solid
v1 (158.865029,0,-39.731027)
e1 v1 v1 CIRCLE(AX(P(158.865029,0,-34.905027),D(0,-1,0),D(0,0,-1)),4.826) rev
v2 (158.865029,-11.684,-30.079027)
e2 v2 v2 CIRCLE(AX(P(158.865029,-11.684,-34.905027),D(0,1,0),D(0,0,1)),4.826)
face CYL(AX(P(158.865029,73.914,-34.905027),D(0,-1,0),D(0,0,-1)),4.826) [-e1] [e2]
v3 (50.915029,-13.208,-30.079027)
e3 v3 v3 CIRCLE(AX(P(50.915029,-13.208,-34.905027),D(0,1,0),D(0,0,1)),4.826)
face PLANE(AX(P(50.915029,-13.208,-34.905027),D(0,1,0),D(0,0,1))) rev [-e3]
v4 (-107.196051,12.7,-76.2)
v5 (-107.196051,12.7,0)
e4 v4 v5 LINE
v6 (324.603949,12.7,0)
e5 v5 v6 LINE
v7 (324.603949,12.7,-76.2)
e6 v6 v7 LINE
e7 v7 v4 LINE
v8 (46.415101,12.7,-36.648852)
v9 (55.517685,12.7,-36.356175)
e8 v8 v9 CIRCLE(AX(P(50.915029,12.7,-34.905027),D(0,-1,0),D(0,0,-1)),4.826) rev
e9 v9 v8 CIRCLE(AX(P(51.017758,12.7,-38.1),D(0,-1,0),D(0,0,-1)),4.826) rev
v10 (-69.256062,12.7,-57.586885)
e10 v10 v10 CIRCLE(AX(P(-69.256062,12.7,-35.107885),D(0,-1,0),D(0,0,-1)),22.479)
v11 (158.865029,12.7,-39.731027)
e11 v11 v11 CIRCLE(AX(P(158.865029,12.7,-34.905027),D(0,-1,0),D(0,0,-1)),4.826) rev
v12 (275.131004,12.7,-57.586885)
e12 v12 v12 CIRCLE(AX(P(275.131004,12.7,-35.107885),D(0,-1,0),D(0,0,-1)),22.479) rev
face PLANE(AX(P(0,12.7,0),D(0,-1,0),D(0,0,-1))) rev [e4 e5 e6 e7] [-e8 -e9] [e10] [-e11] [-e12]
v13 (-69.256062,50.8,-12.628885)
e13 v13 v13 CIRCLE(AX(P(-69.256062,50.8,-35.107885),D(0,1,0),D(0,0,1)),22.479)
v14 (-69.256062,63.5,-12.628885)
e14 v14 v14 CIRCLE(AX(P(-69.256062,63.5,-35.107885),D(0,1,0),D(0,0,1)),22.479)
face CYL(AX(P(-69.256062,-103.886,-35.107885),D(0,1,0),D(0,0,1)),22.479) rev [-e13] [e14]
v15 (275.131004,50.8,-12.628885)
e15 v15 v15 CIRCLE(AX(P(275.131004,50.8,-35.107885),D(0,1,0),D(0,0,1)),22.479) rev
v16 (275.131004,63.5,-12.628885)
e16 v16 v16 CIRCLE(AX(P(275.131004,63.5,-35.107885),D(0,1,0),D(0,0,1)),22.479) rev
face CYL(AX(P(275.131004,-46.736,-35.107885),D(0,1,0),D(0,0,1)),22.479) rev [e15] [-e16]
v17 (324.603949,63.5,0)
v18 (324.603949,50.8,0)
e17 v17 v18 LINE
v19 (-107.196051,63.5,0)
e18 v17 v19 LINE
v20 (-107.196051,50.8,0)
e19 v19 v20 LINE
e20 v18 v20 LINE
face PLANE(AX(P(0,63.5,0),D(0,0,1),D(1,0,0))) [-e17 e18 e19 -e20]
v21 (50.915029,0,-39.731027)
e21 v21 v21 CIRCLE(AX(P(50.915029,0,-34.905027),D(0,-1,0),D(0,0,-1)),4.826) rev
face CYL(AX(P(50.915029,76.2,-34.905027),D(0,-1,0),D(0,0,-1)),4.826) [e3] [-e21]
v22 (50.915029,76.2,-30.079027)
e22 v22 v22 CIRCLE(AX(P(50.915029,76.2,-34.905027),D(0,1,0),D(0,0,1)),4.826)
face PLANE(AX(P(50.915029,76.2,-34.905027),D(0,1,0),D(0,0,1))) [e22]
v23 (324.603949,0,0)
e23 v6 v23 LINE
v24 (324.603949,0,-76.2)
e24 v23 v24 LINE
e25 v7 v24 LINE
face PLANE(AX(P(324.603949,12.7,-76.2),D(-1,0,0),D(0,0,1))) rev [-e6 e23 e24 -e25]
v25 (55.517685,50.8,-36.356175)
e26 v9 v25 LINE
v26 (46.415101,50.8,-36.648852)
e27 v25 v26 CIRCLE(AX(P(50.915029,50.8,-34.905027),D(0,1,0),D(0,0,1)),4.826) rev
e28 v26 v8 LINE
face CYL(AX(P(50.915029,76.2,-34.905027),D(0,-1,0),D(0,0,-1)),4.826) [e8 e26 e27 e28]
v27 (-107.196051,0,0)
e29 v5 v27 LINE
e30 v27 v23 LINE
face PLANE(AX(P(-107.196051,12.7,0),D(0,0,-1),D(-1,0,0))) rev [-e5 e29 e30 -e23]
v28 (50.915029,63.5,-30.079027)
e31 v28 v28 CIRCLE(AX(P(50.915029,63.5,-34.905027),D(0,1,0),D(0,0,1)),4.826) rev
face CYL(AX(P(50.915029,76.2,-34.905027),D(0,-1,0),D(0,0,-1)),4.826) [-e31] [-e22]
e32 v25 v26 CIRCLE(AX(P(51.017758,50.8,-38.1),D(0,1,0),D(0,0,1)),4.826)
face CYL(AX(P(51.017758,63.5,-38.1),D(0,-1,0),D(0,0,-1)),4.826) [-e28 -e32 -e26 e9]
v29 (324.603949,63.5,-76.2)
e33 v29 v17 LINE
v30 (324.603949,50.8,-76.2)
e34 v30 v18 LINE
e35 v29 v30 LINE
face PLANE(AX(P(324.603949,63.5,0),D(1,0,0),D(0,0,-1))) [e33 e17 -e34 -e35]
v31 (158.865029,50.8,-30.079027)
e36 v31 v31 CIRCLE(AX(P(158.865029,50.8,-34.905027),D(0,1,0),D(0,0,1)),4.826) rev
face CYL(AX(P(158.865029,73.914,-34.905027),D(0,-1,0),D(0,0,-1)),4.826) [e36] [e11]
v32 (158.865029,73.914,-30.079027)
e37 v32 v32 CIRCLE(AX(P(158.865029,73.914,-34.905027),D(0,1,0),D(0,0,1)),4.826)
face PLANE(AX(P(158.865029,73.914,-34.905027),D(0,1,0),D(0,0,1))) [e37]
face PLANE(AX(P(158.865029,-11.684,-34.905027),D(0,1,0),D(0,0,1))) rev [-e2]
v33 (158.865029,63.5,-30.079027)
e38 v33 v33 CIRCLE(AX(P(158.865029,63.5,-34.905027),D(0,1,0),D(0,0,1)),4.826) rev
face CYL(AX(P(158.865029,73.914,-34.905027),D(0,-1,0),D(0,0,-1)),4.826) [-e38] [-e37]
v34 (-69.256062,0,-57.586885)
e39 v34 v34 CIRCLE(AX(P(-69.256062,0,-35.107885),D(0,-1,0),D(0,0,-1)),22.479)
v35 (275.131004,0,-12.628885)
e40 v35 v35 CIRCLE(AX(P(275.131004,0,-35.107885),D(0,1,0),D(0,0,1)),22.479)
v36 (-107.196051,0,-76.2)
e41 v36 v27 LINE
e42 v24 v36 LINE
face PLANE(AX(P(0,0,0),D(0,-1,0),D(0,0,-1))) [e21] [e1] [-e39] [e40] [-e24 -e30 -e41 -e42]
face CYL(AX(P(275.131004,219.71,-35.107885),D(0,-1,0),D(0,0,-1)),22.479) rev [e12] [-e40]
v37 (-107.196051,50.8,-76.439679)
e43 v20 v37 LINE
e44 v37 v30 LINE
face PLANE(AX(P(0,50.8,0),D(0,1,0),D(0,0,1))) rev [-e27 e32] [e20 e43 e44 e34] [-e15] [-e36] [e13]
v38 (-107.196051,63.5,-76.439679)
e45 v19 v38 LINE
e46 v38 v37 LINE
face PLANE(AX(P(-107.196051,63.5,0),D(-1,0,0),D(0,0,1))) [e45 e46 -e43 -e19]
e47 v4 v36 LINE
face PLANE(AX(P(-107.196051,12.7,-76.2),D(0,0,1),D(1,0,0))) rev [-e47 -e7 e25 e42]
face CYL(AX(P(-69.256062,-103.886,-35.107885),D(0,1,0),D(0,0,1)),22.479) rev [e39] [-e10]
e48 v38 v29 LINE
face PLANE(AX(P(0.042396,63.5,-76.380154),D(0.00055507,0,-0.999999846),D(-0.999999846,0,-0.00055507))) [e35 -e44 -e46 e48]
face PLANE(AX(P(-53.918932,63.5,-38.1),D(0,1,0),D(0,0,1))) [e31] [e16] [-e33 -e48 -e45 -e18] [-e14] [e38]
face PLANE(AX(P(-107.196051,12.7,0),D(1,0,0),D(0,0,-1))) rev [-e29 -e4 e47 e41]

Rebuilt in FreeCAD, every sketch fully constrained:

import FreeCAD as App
import Part
import Sketcher
Q = App.Units.Quantity


def add_polygon(sketch, points):
    """Adds a closed chain of lines whose ends are joined by coincident constraints."""
    first, n = sketch.GeometryCount, len(points)
    for a, b in zip(points, points[1:] + points[:1]):
        sketch.addGeometry(Part.LineSegment(App.Vector(*a, 0), App.Vector(*b, 0)), False)
    for i in range(n):
        sketch.addConstraint(Sketcher.Constraint("Coincident", first + i, 2, first + (i + 1) % n, 1))

doc = App.newDocument("Part")
body = doc.addObject("PartDesign::Body", "Body")

sketch1 = body.newObject("Sketcher::SketchObject", "Sketch")
sketch1.AttachmentSupport = (doc.getObject("XZ_Plane"), [""])
sketch1.MapMode = "FlatFace"
add_polygon(sketch1, [(-107, -76), (-107, 0), (325, 0), (325, -76)])
sketch1.addConstraint([
    Sketcher.Constraint("Vertical", 0),
    Sketcher.Constraint("Horizontal", 1),
    Sketcher.Constraint("Vertical", 2),
    Sketcher.Constraint("Horizontal", 3),
    Sketcher.Constraint("PointOnObject", 0, 2, -1),
    Sketcher.Constraint("DistanceX", 1, 1, 1, 2, Q("17 in")),
    Sketcher.Constraint("DistanceY", 0, 1, 0, 2, Q("3 in")),
    Sketcher.Constraint("DistanceX", 0, 2, -1, 1, Q("107.196051 mm")),
])
pad1 = body.newObject("PartDesign::Pad", "Pad")
pad1.Profile = sketch1
pad1.Length = Q("0.5 in")
pad1.Reversed = True

sketch2 = body.newObject("Sketcher::SketchObject", "Sketch001")
sketch2.AttachmentSupport = (doc.getObject("XZ_Plane"), [""])
sketch2.MapMode = "FlatFace"
sketch2.addGeometry([
    Part.Circle(App.Vector(-53.9, -38.1, 0), App.Vector(0, 0, 1), 4.8),
    Part.Circle(App.Vector(51, -38.1, 0), App.Vector(0, 0, 1), 4.8),
], False)
sketch2.addConstraint([
    Sketcher.Constraint("Equal", 0, 1),
    Sketcher.Constraint("Horizontal", 0, 3, 1, 3),
    Sketcher.Constraint("Diameter", 0, Q("0.38 in")),
    Sketcher.Constraint("DistanceY", 0, 3, -1, 1, Q("1.5 in")),
    Sketcher.Constraint("DistanceX", 0, 3, 1, 3, Q("104.93669 mm")),
    Sketcher.Constraint("DistanceX", 0, 3, -1, 1, Q("53.918932 mm")),
])
pad2 = body.newObject("PartDesign::Pad", "Pad001")
pad2.Profile = sketch2
pad2.Length = Q("2.5 in")
pad2.Reversed = True

sketch3 = body.newObject("Sketcher::SketchObject", "Sketch002")
sketch3.AttachmentSupport = (doc.getObject("XZ_Plane"), [""])
sketch3.MapMode = "FlatFace"
sketch3.addGeometry(Part.Circle(App.Vector(275, -35, 0), App.Vector(0, 0, 1), 22), False)
sketch3.addConstraint([
    Sketcher.Constraint("Diameter", 0, Q("1.77 in")),
    Sketcher.Constraint("DistanceY", 0, 3, -1, 1, Q("1.3822002 in")),
    Sketcher.Constraint("DistanceX", -1, 1, 0, 3, Q("275.131004 mm")),
])
pocket1 = body.newObject("PartDesign::Pocket", "Pocket")
pocket1.Profile = sketch3
pocket1.Length = Q("8.65 in")

sketch4 = body.newObject("Sketcher::SketchObject", "Sketch003")
sketch4.AttachmentSupport = (doc.getObject("XZ_Plane"), [""])
sketch4.MapMode = "FlatFace"
sketch4.addGeometry(Part.Circle(App.Vector(275, -35, 0), App.Vector(0, 0, 1), 22), False)
sketch4.addConstraint([
    Sketcher.Constraint("Diameter", 0, Q("1.77 in")),
    Sketcher.Constraint("DistanceY", 0, 3, -1, 1, Q("1.3822002 in")),
    Sketcher.Constraint("DistanceX", -1, 1, 0, 3, Q("275.131004 mm")),
])
pocket2 = body.newObject("PartDesign::Pocket", "Pocket001")
pocket2.Profile = sketch4
pocket2.Length = Q("7.11 in")

sketch5 = body.newObject("Sketcher::SketchObject", "Sketch004")
sketch5.AttachmentSupport = (doc.getObject("XZ_Plane"), [""])
sketch5.MapMode = "FlatFace"
sketch5.AttachmentOffset = App.Placement(App.Vector(0, 0, -2 * 25.4), App.Rotation())
add_polygon(sketch5, [(-107, -76), (-107, 0), (325, 0), (325, -76)])
sketch5.addConstraint([
    Sketcher.Constraint("Vertical", 0),
    Sketcher.Constraint("Horizontal", 1),
    Sketcher.Constraint("Vertical", 2),
    Sketcher.Constraint("PointOnObject", 0, 2, -1),
    Sketcher.Constraint("DistanceX", 1, 1, 1, 2, Q("17 in")),
    Sketcher.Constraint("DistanceY", 2, 2, 2, 1, Q("3 in")),
    Sketcher.Constraint("DistanceY", 0, 1, 0, 2, Q("76.439679 mm")),
    Sketcher.Constraint("DistanceX", 0, 2, -1, 1, Q("107.196051 mm")),
])
pad3 = body.newObject("PartDesign::Pad", "Pad002")
pad3.Profile = sketch5
pad3.Length = Q("0.5 in")
pad3.Reversed = True

sketch6 = body.newObject("Sketcher::SketchObject", "Sketch005")
sketch6.AttachmentSupport = (doc.getObject("XZ_Plane"), [""])
sketch6.MapMode = "FlatFace"
sketch6.addGeometry(Part.Circle(App.Vector(275, -35, 0), App.Vector(0, 0, 1), 22), False)
sketch6.addConstraint([
    Sketcher.Constraint("Diameter", 0, Q("1.77 in")),
    Sketcher.Constraint("DistanceY", 0, 3, -1, 1, Q("1.3822002 in")),
    Sketcher.Constraint("DistanceX", -1, 1, 0, 3, Q("275.131004 mm")),
])
pocket3 = body.newObject("PartDesign::Pocket", "Pocket002")
pocket3.Profile = sketch6
pocket3.Type = "ThroughAll"
pocket3.Midplane = True

sketch7 = body.newObject("Sketcher::SketchObject", "Sketch006")
sketch7.AttachmentSupport = (doc.getObject("XZ_Plane"), [""])
sketch7.MapMode = "FlatFace"
sketch7.addGeometry(Part.Circle(App.Vector(-69, -35, 0), App.Vector(0, 0, 1), 22), False)
sketch7.addConstraint([
    Sketcher.Constraint("Diameter", 0, Q("1.77 in")),
    Sketcher.Constraint("DistanceY", 0, 3, -1, 1, Q("1.3822002 in")),
    Sketcher.Constraint("DistanceX", 0, 3, -1, 1, Q("69.256062 mm")),
])
pocket4 = body.newObject("PartDesign::Pocket", "Pocket003")
pocket4.Profile = sketch7
pocket4.Type = "ThroughAll"
pocket4.Midplane = True

sketch8 = body.newObject("Sketcher::SketchObject", "Sketch007")
sketch8.AttachmentSupport = (doc.getObject("XZ_Plane"), [""])
sketch8.MapMode = "FlatFace"
sketch8.AttachmentOffset = App.Placement(App.Vector(0, 0, -2.5 * 25.4), App.Rotation())
sketch8.addGeometry(Part.Circle(App.Vector(158.9, -34.9, 0), App.Vector(0, 0, 1), 4.8), False)
sketch8.addConstraint([
    Sketcher.Constraint("Diameter", 0, Q("0.38 in")),
    Sketcher.Constraint("DistanceX", -1, 1, 0, 3, Q("158.865029 mm")),
    Sketcher.Constraint("DistanceY", 0, 3, -1, 1, Q("34.905027 mm")),
])
pad4 = body.newObject("PartDesign::Pad", "Pad003")
pad4.Profile = sketch8
pad4.Type = "TwoLengths"
pad4.Length = Q("0.41 in")
pad4.Length2 = Q("2.96 in")
pad4.Reversed = True

sketch9 = body.newObject("Sketcher::SketchObject", "Sketch008")
sketch9.AttachmentSupport = (doc.getObject("XZ_Plane"), [""])
sketch9.MapMode = "FlatFace"
sketch9.addGeometry(Part.Circle(App.Vector(50.9, -34.9, 0), App.Vector(0, 0, 1), 4.8), False)
sketch9.addConstraint([
    Sketcher.Constraint("Diameter", 0, Q("0.38 in")),
    Sketcher.Constraint("DistanceX", -1, 1, 0, 3, Q("50.915029 mm")),
    Sketcher.Constraint("DistanceY", 0, 3, -1, 1, Q("34.905027 mm")),
])
pad5 = body.newObject("PartDesign::Pad", "Pad004")
pad5.Profile = sketch9
pad5.Type = "TwoLengths"
pad5.Length = Q("3 in")
pad5.Length2 = Q("0.52 in")
pad5.Reversed = True

doc.recompute()
